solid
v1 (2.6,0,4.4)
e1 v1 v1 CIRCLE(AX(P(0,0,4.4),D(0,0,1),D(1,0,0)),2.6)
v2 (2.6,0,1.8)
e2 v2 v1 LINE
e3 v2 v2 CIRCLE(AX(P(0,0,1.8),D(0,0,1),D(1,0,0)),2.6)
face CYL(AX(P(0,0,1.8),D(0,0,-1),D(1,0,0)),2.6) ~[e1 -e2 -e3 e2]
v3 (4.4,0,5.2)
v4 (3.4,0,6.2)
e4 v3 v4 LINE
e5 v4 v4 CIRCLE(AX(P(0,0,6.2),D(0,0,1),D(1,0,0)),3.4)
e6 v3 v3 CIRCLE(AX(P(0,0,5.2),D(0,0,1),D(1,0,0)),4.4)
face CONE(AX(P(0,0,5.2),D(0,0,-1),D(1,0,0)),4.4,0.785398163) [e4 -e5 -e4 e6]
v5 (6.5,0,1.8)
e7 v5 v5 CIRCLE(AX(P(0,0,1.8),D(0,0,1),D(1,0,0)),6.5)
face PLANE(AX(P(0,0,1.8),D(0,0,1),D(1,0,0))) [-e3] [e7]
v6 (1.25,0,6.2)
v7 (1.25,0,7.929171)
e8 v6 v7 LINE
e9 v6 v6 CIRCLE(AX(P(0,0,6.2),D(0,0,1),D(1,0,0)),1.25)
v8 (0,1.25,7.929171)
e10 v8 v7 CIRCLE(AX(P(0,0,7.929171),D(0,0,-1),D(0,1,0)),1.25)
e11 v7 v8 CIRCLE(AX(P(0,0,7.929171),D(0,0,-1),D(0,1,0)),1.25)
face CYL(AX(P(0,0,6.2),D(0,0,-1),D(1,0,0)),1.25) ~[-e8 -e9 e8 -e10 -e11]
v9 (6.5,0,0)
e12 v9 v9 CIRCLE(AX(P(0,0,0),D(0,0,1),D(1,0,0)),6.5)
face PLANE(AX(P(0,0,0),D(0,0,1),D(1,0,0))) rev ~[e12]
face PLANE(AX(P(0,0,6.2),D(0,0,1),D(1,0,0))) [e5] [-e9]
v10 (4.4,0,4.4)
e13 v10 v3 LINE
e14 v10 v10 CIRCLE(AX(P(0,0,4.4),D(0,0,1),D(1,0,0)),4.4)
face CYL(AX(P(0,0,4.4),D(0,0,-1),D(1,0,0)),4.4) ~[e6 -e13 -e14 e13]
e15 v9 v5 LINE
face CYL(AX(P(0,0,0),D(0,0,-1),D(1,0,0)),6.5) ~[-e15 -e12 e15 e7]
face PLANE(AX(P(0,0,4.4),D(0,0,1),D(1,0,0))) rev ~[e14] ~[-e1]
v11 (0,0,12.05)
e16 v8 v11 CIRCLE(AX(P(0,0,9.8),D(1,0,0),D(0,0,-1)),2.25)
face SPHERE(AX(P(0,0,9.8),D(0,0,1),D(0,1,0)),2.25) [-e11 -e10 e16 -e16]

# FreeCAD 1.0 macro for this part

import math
import FreeCAD as App
import Part
import Sketcher

V = App.Vector
Q = App.Units.Quantity


def edges_at(feature, points):
    """Names of the edges that pass closest to the given points."""
    edges = feature.Shape.Edges
    near = lambda p: min(range(len(edges)), key=lambda i: edges[i].distToShape(Part.Vertex(*p))[0])
    return sorted({f"Edge{near(p) + 1}" for p in points})

doc = App.newDocument("Part")
body = doc.addObject("PartDesign::Body", "Body")

# Sketch on XY plane
sketch1 = body.newObject("Sketcher::SketchObject", "Sketch")
sketch1.AttachmentSupport = (doc.getObject("XY_Plane"), [""])
sketch1.MapMode = "FlatFace"
sketch1.addGeometry(Part.Circle(V(0, 0, 0), V(0, 0, 1), 6), False)
sketch1.addConstraint(Sketcher.Constraint("Coincident", 0, 3, -1, 1))
sketch1.addConstraint(Sketcher.Constraint("Diameter", 0, Q("13 mm")))
pad1 = body.newObject("PartDesign::Pad", "Pad")
pad1.Profile = sketch1
pad1.Length = 1.8

# Sketch on XY plane
sketch2 = body.newObject("Sketcher::SketchObject", "Sketch001")
sketch2.AttachmentSupport = (doc.getObject("XY_Plane"), [""])
sketch2.MapMode = "FlatFace"
sketch2.AttachmentOffset = App.Placement(V(0, 0, 1.8), App.Rotation())
sketch2.addGeometry(Part.Circle(V(0, 0, 0), V(0, 0, 1), 2.6), False)
sketch2.addConstraint(Sketcher.Constraint("Coincident", 0, 3, -1, 1))
sketch2.addConstraint(Sketcher.Constraint("Diameter", 0, Q("5.2 mm")))
pad2 = body.newObject("PartDesign::Pad", "Pad001")
pad2.Profile = sketch2
pad2.Length = 2.6

# Sketch on XY plane
sketch3 = body.newObject("Sketcher::SketchObject", "Sketch002")
sketch3.AttachmentSupport = (doc.getObject("XY_Plane"), [""])
sketch3.MapMode = "FlatFace"
sketch3.AttachmentOffset = App.Placement(V(0, 0, 4.4), App.Rotation())
sketch3.addGeometry(Part.Circle(V(0, 0, 0), V(0, 0, 1), 4.4), False)
sketch3.addConstraint(Sketcher.Constraint("Coincident", 0, 3, -1, 1))
sketch3.addConstraint(Sketcher.Constraint("Diameter", 0, Q("8.8 mm")))
pad3 = body.newObject("PartDesign::Pad", "Pad002")
pad3.Profile = sketch3
pad3.Length = 1.8
doc.recompute()

chamfer = body.newObject("PartDesign::Chamfer", "Chamfer")
chamfer.Base = (pad3, edges_at(pad3, [(-4.4, 0, 6.2)]))
chamfer.Size = 1

# Sketch on XY plane
sketch4 = body.newObject("Sketcher::SketchObject", "Sketch003")
sketch4.AttachmentSupport = (doc.getObject("XY_Plane"), [""])
sketch4.MapMode = "FlatFace"
sketch4.AttachmentOffset = App.Placement(V(0, 0, 6.2), App.Rotation())
sketch4.addGeometry(Part.Circle(V(0, 0, 0), V(0, 0, 1), 1.2), False)
sketch4.addConstraint(Sketcher.Constraint("Coincident", 0, 3, -1, 1))
sketch4.addConstraint(Sketcher.Constraint("Diameter", 0, Q("2.5 mm")))
pad4 = body.newObject("PartDesign::Pad", "Pad003")
pad4.Profile = sketch4
pad4.Length = 1.8

# Sketch on YZ plane
sketch5 = body.newObject("Sketcher::SketchObject", "Sketch004")
sketch5.AttachmentSupport = (doc.getObject("YZ_Plane"), [""])
sketch5.MapMode = "FlatFace"
sketch5.addGeometry(Part.LineSegment(V(0, 12.1, 0), V(0, 7.5, 0)), False)
sketch5.addGeometry(Part.ArcOfCircle(Part.Circle(V(0, 9.8, 0), V(0, 0, 1), 2.2), math.radians(-90), math.radians(90)), False)
sketch5.addConstraint(Sketcher.Constraint("Coincident", 0, 1, 1, 2))
sketch5.addConstraint(Sketcher.Constraint("Coincident", 1, 1, 0, 2))
sketch5.addConstraint(Sketcher.Constraint("Vertical", 0))
sketch5.addConstraint(Sketcher.Constraint("PointOnObject", 1, 3, -2))
sketch5.addConstraint(Sketcher.Constraint("PointOnObject", 0, 1, -2))
sketch5.addConstraint(Sketcher.Constraint("Radius", 1, Q("2.25 mm")))
sketch5.addConstraint(Sketcher.Constraint("DistanceY", -1, 1, 1, 3, Q("9.8 mm")))
revolution = body.newObject("PartDesign::Revolution", "Revolution")
revolution.Profile = sketch5
revolution.ReferenceAxis = (sketch5, ["V_Axis"])
revolution.Angle = 360

doc.recompute()
